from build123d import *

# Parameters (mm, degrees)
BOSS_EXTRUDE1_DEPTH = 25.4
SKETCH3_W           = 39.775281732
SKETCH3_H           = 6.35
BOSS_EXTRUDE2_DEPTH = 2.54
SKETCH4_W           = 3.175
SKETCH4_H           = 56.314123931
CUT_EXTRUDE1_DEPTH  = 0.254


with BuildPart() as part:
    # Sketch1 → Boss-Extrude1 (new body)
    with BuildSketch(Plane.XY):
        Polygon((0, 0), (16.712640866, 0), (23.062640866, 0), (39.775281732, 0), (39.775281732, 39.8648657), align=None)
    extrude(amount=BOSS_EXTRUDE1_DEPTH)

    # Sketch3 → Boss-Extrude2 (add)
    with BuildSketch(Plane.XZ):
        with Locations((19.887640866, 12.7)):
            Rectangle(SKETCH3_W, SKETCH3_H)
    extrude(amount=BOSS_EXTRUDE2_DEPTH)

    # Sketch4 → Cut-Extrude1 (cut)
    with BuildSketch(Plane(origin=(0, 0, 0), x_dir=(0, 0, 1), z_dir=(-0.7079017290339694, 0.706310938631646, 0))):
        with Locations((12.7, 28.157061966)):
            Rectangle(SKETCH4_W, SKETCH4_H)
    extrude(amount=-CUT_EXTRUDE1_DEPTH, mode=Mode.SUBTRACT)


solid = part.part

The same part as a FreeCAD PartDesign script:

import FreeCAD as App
import Part
import Sketcher
from FreeCAD import Vector
Q = App.Units.Quantity

doc = App.newDocument("Part")
body = doc.addObject("PartDesign::Body", "Body")

sketch1 = body.newObject("Sketcher::SketchObject", "Sketch")
sketch1.AttachmentSupport = (doc.getObject("XY_Plane"), [""])
sketch1.MapMode = "FlatFace"
sketch1.addGeometry(Part.LineSegment(Vector(0, 0, 0), Vector(39.775282, 0, 0)), False)
sketch1.addGeometry(Part.LineSegment(Vector(39.775282, 0, 0), Vector(39.775282, 39.864866, 0)), False)
sketch1.addGeometry(Part.LineSegment(Vector(39.775282, 39.864866, 0), Vector(0, 0, 0)), False)
sketch1.addConstraint(Sketcher.Constraint("Coincident", 0, 2, 1, 1))
sketch1.addConstraint(Sketcher.Constraint("Coincident", 1, 2, 2, 1))
sketch1.addConstraint(Sketcher.Constraint("Coincident", 2, 2, 0, 1))
sketch1.addConstraint(Sketcher.Constraint("Horizontal", 0))
sketch1.addConstraint(Sketcher.Constraint("Vertical", 1))
sketch1.addConstraint(Sketcher.Constraint("Coincident", 2, 2, -1, 1))
sketch1.addConstraint(Sketcher.Constraint("DistanceX", 0, 1, 0, 2, 39.775282))
sketch1.addConstraint(Sketcher.Constraint("DistanceY", 1, 1, 1, 2, 39.864866))
pad1 = body.newObject("PartDesign::Pad", "Pad")
pad1.Profile = sketch1
pad1.Length = Q("1 in")

sketch2 = body.newObject("Sketcher::SketchObject", "Sketch001")
sketch2.AttachmentSupport = (doc.getObject("XZ_Plane"), [""])
sketch2.MapMode = "FlatFace"
sketch2.addGeometry(Part.LineSegment(Vector(0, 15.875, 0), Vector(0, 9.525, 0)), False)
sketch2.addGeometry(Part.LineSegment(Vector(0, 9.525, 0), Vector(39.775282, 9.525, 0)), False)
sketch2.addGeometry(Part.LineSegment(Vector(39.775282, 9.525, 0), Vector(39.775282, 15.875, 0)), False)
sketch2.addGeometry(Part.LineSegment(Vector(39.775282, 15.875, 0), Vector(0, 15.875, 0)), False)
sketch2.addConstraint(Sketcher.Constraint("Coincident", 0, 2, 1, 1))
sketch2.addConstraint(Sketcher.Constraint("Coincident", 1, 2, 2, 1))
sketch2.addConstraint(Sketcher.Constraint("Coincident", 2, 2, 3, 1))
sketch2.addConstraint(Sketcher.Constraint("Coincident", 3, 2, 0, 1))
sketch2.addConstraint(Sketcher.Constraint("Vertical", 0))
sketch2.addConstraint(Sketcher.Constraint("Horizontal", 1))
sketch2.addConstraint(Sketcher.Constraint("Vertical", 2))
sketch2.addConstraint(Sketcher.Constraint("Horizontal", 3))
sketch2.addConstraint(Sketcher.Constraint("PointOnObject", 0, 2, -2))
sketch2.addConstraint(Sketcher.Constraint("DistanceY", 0, 2, 0, 1, Q("0.25 in")))
sketch2.addConstraint(Sketcher.Constraint("DistanceY", -1, 1, 0, 2, Q("0.375 in")))
sketch2.addConstraint(Sketcher.Constraint("DistanceX", 1, 1, 1, 2, 39.775282))
pad2 = body.newObject("PartDesign::Pad", "Pad001")
pad2.Profile = sketch2
pad2.Length = Q("0.1 in")

sketch3 = body.newObject("Sketcher::SketchObject", "Sketch002")
sketch3.Placement = App.Placement(Vector(0, 0, 0), App.Rotation(Vector(0, 0, 1), Vector(0.706310939, 0.707901729, 0), Vector(-0.707901729, 0.706310939, 0), "ZXY"))
sketch3.addGeometry(Part.LineSegment(Vector(11.1125, 56.314124, 0), Vector(11.1125, 0, 0)), False)
sketch3.addGeometry(Part.LineSegment(Vector(11.1125, 0, 0), Vector(14.2875, 0, 0)), False)
sketch3.addGeometry(Part.LineSegment(Vector(14.2875, 0, 0), Vector(14.2875, 56.314124, 0)), False)
sketch3.addGeometry(Part.LineSegment(Vector(14.2875, 56.314124, 0), Vector(11.1125, 56.314124, 0)), False)
sketch3.addConstraint(Sketcher.Constraint("Coincident", 0, 2, 1, 1))
sketch3.addConstraint(Sketcher.Constraint("Coincident", 1, 2, 2, 1))
sketch3.addConstraint(Sketcher.Constraint("Coincident", 2, 2, 3, 1))
sketch3.addConstraint(Sketcher.Constraint("Coincident", 3, 2, 0, 1))
sketch3.addConstraint(Sketcher.Constraint("Vertical", 0))
sketch3.addConstraint(Sketcher.Constraint("Horizontal", 1))
sketch3.addConstraint(Sketcher.Constraint("Vertical", 2))
sketch3.addConstraint(Sketcher.Constraint("Horizontal", 3))
sketch3.addConstraint(Sketcher.Constraint("PointOnObject", 0, 2, -1))
sketch3.addConstraint(Sketcher.Constraint("DistanceX", 1, 1, 1, 2, Q("0.125 in")))
sketch3.addConstraint(Sketcher.Constraint("DistanceX", -1, 1, 0, 2, Q("0.4375 in")))
sketch3.addConstraint(Sketcher.Constraint("DistanceY", 0, 2, 0, 1, 56.314124))
pocket1 = body.newObject("PartDesign::Pocket", "Pocket")
pocket1.Profile = sketch3
pocket1.Length = Q("0.01 in")

doc.recompute()
